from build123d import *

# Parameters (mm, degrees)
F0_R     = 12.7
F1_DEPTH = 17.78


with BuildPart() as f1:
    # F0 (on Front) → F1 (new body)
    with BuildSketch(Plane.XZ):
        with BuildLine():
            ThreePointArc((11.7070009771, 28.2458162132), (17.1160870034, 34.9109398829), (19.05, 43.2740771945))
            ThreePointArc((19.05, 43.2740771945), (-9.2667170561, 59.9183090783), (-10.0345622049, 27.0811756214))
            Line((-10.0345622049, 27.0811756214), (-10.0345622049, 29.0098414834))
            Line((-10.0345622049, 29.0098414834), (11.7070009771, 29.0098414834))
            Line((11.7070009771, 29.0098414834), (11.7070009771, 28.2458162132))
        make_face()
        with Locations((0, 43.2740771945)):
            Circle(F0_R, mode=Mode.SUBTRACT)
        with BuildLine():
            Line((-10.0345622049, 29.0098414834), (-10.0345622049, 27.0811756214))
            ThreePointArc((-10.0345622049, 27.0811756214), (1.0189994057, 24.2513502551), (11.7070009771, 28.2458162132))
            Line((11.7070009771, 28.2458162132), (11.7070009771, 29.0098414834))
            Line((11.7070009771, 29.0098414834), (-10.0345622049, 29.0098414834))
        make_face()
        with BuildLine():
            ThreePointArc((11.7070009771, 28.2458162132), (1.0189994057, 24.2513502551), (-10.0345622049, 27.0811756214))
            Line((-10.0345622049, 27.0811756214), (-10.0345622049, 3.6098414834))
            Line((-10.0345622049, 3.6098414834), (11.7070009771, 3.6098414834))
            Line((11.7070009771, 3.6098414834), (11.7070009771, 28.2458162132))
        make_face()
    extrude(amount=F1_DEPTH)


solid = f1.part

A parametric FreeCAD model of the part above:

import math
import FreeCAD as App
import Part
import Sketcher
from FreeCAD import Vector
Q = App.Units.Quantity

doc = App.newDocument("Part")
body = doc.addObject("PartDesign::Body", "Body")

# Sketch on XZ plane
sketch1 = doc.addObject("Sketcher::SketchObject", "Sketch")
body.addObject(sketch1)
sketch1.AttachmentSupport = (doc.XZ_Plane, [""])
sketch1.MapMode = "FlatFace"
sketch1.addGeometry(Part.ArcOfCircle(Part.Circle(Vector(0, 43, 0), Vector(0, 0, 1), 19), math.radians(-52), math.radians(0)), False)
sketch1.addGeometry(Part.ArcOfCircle(Part.Circle(Vector(0, 43, 0), Vector(0, 0, 1), 19), math.radians(0), math.radians(238)), False)
sketch1.addGeometry(Part.LineSegment(Vector(-10, 27, 0), Vector(-10, 4, 0)), False)
sketch1.addGeometry(Part.LineSegment(Vector(-10, 4, 0), Vector(12, 4, 0)), False)
sketch1.addGeometry(Part.LineSegment(Vector(12, 4, 0), Vector(12, 28, 0)), False)
sketch1.addGeometry(Part.Circle(Vector(0, 43, 0), Vector(0, 0, 1), 13), False)
sketch1.addConstraint(Sketcher.Constraint("Tangent", 0, 2, 1, 1))
sketch1.addConstraint(Sketcher.Constraint("Coincident", 1, 2, 2, 1))
sketch1.addConstraint(Sketcher.Constraint("Coincident", 2, 2, 3, 1))
sketch1.addConstraint(Sketcher.Constraint("Coincident", 3, 2, 4, 1))
sketch1.addConstraint(Sketcher.Constraint("Coincident", 4, 2, 0, 1))
sketch1.addConstraint(Sketcher.Constraint("Vertical", 2))
sketch1.addConstraint(Sketcher.Constraint("Horizontal", 3))
sketch1.addConstraint(Sketcher.Constraint("Vertical", 4))
sketch1.addConstraint(Sketcher.Constraint("Coincident", 5, 3, 0, 3))
sketch1.addConstraint(Sketcher.Constraint("Equal", 0, 1))
sketch1.addConstraint(Sketcher.Constraint("PointOnObject", 0, 3, -2))
sketch1.addConstraint(Sketcher.Constraint("Horizontal", 5, 3, 0, 2))
sketch1.addConstraint(Sketcher.Constraint("Diameter", 5, Q("1 in")))
sketch1.addConstraint(Sketcher.Constraint("Radius", 0, Q("0.75 in")))
sketch1.addConstraint(Sketcher.Constraint("DistanceX", -1, 1, 3, 2, Q("11.707001 mm")))
sketch1.addConstraint(Sketcher.Constraint("DistanceY", 1, 2, 0, 3, Q("16.192902 mm")))
sketch1.addConstraint(Sketcher.Constraint("DistanceY", 2, 2, 2, 1, Q("23.471334 mm")))
sketch1.addConstraint(Sketcher.Constraint("DistanceY", -1, 1, 2, 2, Q("3.609841 mm")))
pad1 = doc.addObject("PartDesign::Pad", "Pad")
body.addObject(pad1)
pad1.Profile = sketch1
pad1.Length = Q("0.7 in")

doc.recompute()
